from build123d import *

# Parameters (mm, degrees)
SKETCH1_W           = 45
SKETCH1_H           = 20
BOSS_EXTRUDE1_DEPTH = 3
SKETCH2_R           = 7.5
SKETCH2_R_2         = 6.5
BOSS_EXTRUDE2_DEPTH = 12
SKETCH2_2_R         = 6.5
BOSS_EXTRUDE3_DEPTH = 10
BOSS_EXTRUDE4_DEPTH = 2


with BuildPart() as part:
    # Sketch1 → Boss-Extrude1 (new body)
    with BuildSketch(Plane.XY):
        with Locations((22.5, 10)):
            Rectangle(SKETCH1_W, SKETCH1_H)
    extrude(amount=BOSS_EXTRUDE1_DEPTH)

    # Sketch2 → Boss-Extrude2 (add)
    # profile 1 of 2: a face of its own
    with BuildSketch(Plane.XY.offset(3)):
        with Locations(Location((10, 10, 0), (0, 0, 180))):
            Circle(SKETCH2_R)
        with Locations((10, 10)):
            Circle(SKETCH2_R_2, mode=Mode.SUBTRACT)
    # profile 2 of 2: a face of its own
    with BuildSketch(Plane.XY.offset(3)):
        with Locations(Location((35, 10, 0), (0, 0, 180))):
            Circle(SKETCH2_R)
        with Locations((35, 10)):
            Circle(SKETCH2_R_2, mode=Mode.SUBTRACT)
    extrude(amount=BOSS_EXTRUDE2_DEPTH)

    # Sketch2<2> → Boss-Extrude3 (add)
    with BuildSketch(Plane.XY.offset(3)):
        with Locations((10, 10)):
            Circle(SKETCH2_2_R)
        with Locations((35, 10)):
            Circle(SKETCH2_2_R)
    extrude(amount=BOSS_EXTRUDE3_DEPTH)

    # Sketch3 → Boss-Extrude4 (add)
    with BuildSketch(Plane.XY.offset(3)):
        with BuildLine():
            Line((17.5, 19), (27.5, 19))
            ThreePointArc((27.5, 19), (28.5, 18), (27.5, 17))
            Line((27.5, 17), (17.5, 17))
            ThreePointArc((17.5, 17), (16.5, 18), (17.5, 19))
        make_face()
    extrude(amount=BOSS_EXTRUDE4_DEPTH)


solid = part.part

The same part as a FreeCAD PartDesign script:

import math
import FreeCAD as App
import Part
import Sketcher

V = App.Vector

doc = App.newDocument("Part")
params = doc.addObject("Spreadsheet::Sheet", "Params")
for row, (alias, value) in enumerate([
    ("sketch1_width", "45 mm"),
    ("sketch1_height", "20 mm"),
    ("pad1_length", "3 mm"),
    ("sketch2_diameter", "15 mm"),
    ("sketch2_diameter2", "13 mm"),
    ("pad2_length", "12 mm"),
    ("sketch3_diameter", "13 mm"),
    ("pad3_length", "10 mm"),
    ("sketch4_radius", "1 mm"),
    ("sketch4_width", "10 mm"),
    ("pad4_length", "2 mm"),
], start=1):
    params.set(f"A{row}", alias)
    params.set(f"B{row}", "=" + value)
    params.setAlias(f"B{row}", alias)

body = doc.addObject("PartDesign::Body", "Body")

sketch1 = doc.addObject("Sketcher::SketchObject", "Sketch")
body.addObject(sketch1)
sketch1.AttachmentSupport = (doc.XY_Plane, [""])
sketch1.MapMode = "FlatFace"
sketch1.addGeometry(Part.LineSegment(V(0, 20, 0), V(0, 0, 0)), False)
sketch1.addGeometry(Part.LineSegment(V(0, 0, 0), V(45, 0, 0)), False)
sketch1.addGeometry(Part.LineSegment(V(45, 0, 0), V(45, 20, 0)), False)
sketch1.addGeometry(Part.LineSegment(V(45, 20, 0), V(0, 20, 0)), False)
sketch1.addConstraint(Sketcher.Constraint("Coincident", 0, 2, 1, 1))
sketch1.addConstraint(Sketcher.Constraint("Coincident", 1, 2, 2, 1))
sketch1.addConstraint(Sketcher.Constraint("Coincident", 2, 2, 3, 1))
sketch1.addConstraint(Sketcher.Constraint("Coincident", 3, 2, 0, 1))
sketch1.addConstraint(Sketcher.Constraint("Vertical", 0))
sketch1.addConstraint(Sketcher.Constraint("Horizontal", 1))
sketch1.addConstraint(Sketcher.Constraint("Vertical", 2))
sketch1.addConstraint(Sketcher.Constraint("Horizontal", 3))
sketch1.addConstraint(Sketcher.Constraint("Coincident", 0, 2, -1, 1))
sketch1.addConstraint(Sketcher.Constraint("DistanceX", 1, 1, 1, 2, 45.0))
sketch1.addConstraint(Sketcher.Constraint("DistanceY", 0, 2, 0, 1, 20.0))
sketch1.setExpression("Constraints[9]", "Params.sketch1_width")
sketch1.setExpression("Constraints[10]", "Params.sketch1_height")
pad1 = doc.addObject("PartDesign::Pad", "Pad")
body.addObject(pad1)
pad1.Profile = sketch1
pad1.setExpression("Length", "Params.pad1_length")

sketch2 = doc.addObject("Sketcher::SketchObject", "Sketch001")
body.addObject(sketch2)
sketch2.AttachmentSupport = (doc.XY_Plane, [""])
sketch2.MapMode = "FlatFace"
sketch2.AttachmentOffset = App.Placement(V(0, 0, 3), App.Rotation())
sketch2.addGeometry(Part.Circle(V(10, 10, 0), V(0, 0, 1), 8), False)
sketch2.addGeometry(Part.Circle(V(10, 10, 0), V(0, 0, 1), 6), False)
sketch2.addGeometry(Part.Circle(V(35, 10, 0), V(0, 0, 1), 8), False)
sketch2.addGeometry(Part.Circle(V(35, 10, 0), V(0, 0, 1), 6), False)
sketch2.addConstraint(Sketcher.Constraint("Coincident", 1, 3, 0, 3))
sketch2.addConstraint(Sketcher.Constraint("Coincident", 3, 3, 2, 3))
sketch2.addConstraint(Sketcher.Constraint("Equal", 0, 2))
sketch2.addConstraint(Sketcher.Constraint("Equal", 1, 3))
sketch2.addConstraint(Sketcher.Constraint("Horizontal", 1, 3, 2, 3))
sketch2.addConstraint(Sketcher.Constraint("Diameter", 0, 15.0))
sketch2.addConstraint(Sketcher.Constraint("Diameter", 1, 13.0))
sketch2.addConstraint(Sketcher.Constraint("DistanceX", -1, 1, 0, 3, 10.0))
sketch2.addConstraint(Sketcher.Constraint("DistanceY", -1, 1, 0, 3, 10.0))
sketch2.addConstraint(Sketcher.Constraint("DistanceX", -1, 1, 2, 3, 35.0))
sketch2.setExpression("Constraints[5]", "Params.sketch2_diameter")
sketch2.setExpression("Constraints[6]", "Params.sketch2_diameter2")
pad2 = doc.addObject("PartDesign::Pad", "Pad001")
body.addObject(pad2)
pad2.Profile = sketch2
pad2.setExpression("Length", "Params.pad2_length")

sketch3 = doc.addObject("Sketcher::SketchObject", "Sketch002")
body.addObject(sketch3)
sketch3.AttachmentSupport = (doc.XY_Plane, [""])
sketch3.MapMode = "FlatFace"
sketch3.AttachmentOffset = App.Placement(V(0, 0, 3), App.Rotation())
sketch3.addGeometry(Part.Circle(V(10, 10, 0), V(0, 0, 1), 6), False)
sketch3.addGeometry(Part.Circle(V(35, 10, 0), V(0, 0, 1), 6), False)
sketch3.addConstraint(Sketcher.Constraint("Equal", 0, 1))
sketch3.addConstraint(Sketcher.Constraint("Horizontal", 0, 3, 1, 3))
sketch3.addConstraint(Sketcher.Constraint("Diameter", 0, 13.0))
sketch3.addConstraint(Sketcher.Constraint("DistanceX", -1, 1, 0, 3, 10.0))
sketch3.addConstraint(Sketcher.Constraint("DistanceY", -1, 1, 0, 3, 10.0))
sketch3.addConstraint(Sketcher.Constraint("DistanceX", -1, 1, 1, 3, 35.0))
sketch3.setExpression("Constraints[2]", "Params.sketch3_diameter")
pad3 = doc.addObject("PartDesign::Pad", "Pad002")
body.addObject(pad3)
pad3.Profile = sketch3
pad3.setExpression("Length", "Params.pad3_length")

sketch4 = doc.addObject("Sketcher::SketchObject", "Sketch003")
body.addObject(sketch4)
sketch4.AttachmentSupport = (doc.XY_Plane, [""])
sketch4.MapMode = "FlatFace"
sketch4.AttachmentOffset = App.Placement(V(0, 0, 3), App.Rotation())
sketch4.addGeometry(Part.LineSegment(V(27.5, 19, 0), V(17.5, 19, 0)), False)
sketch4.addGeometry(Part.ArcOfCircle(Part.Circle(V(17.5, 18, 0), V(0, 0, 1), 1), math.radians(90), math.radians(270)), False)
sketch4.addGeometry(Part.LineSegment(V(17.5, 17, 0), V(27.5, 17, 0)), False)
sketch4.addGeometry(Part.ArcOfCircle(Part.Circle(V(27.5, 18, 0), V(0, 0, 1), 1), math.radians(-90), math.radians(90)), False)
sketch4.addConstraint(Sketcher.Constraint("Tangent", 0, 2, 1, 1))
sketch4.addConstraint(Sketcher.Constraint("Tangent", 1, 2, 2, 1))
sketch4.addConstraint(Sketcher.Constraint("Tangent", 2, 2, 3, 1))
sketch4.addConstraint(Sketcher.Constraint("Tangent", 3, 2, 0, 1))
sketch4.addConstraint(Sketcher.Constraint("Horizontal", 0))
sketch4.addConstraint(Sketcher.Constraint("Horizontal", 2))
sketch4.addConstraint(Sketcher.Constraint("Radius", 1, 1.0))
sketch4.addConstraint(Sketcher.Constraint("DistanceX", 0, 2, 0, 1, 10.0))
sketch4.addConstraint(Sketcher.Constraint("DistanceY", -1, 1, 1, 3, 18.0))
sketch4.addConstraint(Sketcher.Constraint("DistanceX", -1, 1, 1, 3, 17.5))
sketch4.setExpression("Constraints[6]", "Params.sketch4_radius")
sketch4.setExpression("Constraints[7]", "Params.sketch4_width")
pad4 = doc.addObject("PartDesign::Pad", "Pad003")
body.addObject(pad4)
pad4.Profile = sketch4
pad4.setExpression("Length", "Params.pad4_length")

doc.recompute()
